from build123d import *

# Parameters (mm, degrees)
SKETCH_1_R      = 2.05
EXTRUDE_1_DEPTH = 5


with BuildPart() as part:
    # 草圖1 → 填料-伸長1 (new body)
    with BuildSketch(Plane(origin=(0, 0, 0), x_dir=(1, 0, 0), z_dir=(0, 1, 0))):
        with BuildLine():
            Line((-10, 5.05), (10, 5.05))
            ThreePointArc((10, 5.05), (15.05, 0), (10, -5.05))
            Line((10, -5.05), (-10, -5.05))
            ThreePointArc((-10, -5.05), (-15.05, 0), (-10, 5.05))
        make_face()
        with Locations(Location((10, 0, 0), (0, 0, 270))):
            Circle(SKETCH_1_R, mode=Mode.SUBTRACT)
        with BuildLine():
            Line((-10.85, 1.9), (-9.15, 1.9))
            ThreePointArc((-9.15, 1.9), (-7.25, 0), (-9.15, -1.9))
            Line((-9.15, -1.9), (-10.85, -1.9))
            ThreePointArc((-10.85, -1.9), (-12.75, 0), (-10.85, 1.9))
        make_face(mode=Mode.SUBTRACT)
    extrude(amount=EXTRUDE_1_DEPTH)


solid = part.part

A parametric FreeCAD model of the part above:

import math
import FreeCAD as App
import Part
import Sketcher

V = App.Vector

doc = App.newDocument("Part")
body = doc.addObject("PartDesign::Body", "Body")

# Sketch on XZ plane
sketch1 = body.newObject("Sketcher::SketchObject", "Sketch")
sketch1.AttachmentSupport = (doc.getObject("XZ_Plane"), [""])
sketch1.MapMode = "FlatFace"
sketch1.addGeometry([
    Part.LineSegment(V(10, -5, 0), V(-10, -5, 0)),  # 0
    Part.ArcOfCircle(Part.Circle(V(-10, 0, 0), V(0, 0, 1), 5), math.radians(90), math.radians(270)),  # 1
    Part.LineSegment(V(-10, 5, 0), V(10, 5, 0)),  # 2
    Part.ArcOfCircle(Part.Circle(V(10, 0, 0), V(0, 0, 1), 5), math.radians(-90), math.radians(90)),  # 3
    Part.Circle(V(10, 0, 0), V(0, 0, 1), 2),  # 4
    Part.LineSegment(V(-10.8, -1.9, 0), V(-9.2, -1.9, 0)),  # 5
    Part.ArcOfCircle(Part.Circle(V(-9.2, 0, 0), V(0, 0, 1), 1.9), math.radians(-90), math.radians(90)),  # 6
    Part.LineSegment(V(-9.2, 1.9, 0), V(-10.8, 1.9, 0)),  # 7
    Part.ArcOfCircle(Part.Circle(V(-10.8, 0, 0), V(0, 0, 1), 1.9), math.radians(90), math.radians(270)),  # 8
], False)
sketch1.addConstraint([
    Sketcher.Constraint("Tangent", 0, 2, 1, 2),
    Sketcher.Constraint("Tangent", 1, 1, 2, 1),
    Sketcher.Constraint("Tangent", 2, 2, 3, 2),
    Sketcher.Constraint("Tangent", 3, 1, 0, 1),
    Sketcher.Constraint("Tangent", 5, 2, 6, 1),
    Sketcher.Constraint("Tangent", 6, 2, 7, 1),
    Sketcher.Constraint("Tangent", 7, 2, 8, 1),
    Sketcher.Constraint("Tangent", 8, 2, 5, 1),
    Sketcher.Constraint("Horizontal", 0),
    Sketcher.Constraint("Horizontal", 2),
    Sketcher.Constraint("Horizontal", 5),
    Sketcher.Constraint("Horizontal", 7),
    Sketcher.Constraint("Coincident", 4, 3, 3, 3),
    Sketcher.Constraint("Symmetric", 1, 3, 3, 3, -1, 1),
    Sketcher.Constraint("PointOnObject", 6, 3, -1),
    Sketcher.Constraint("Diameter", 4, 4.1),
    Sketcher.Constraint("Radius", 6, 1.9),
    Sketcher.Constraint("DistanceX", 0, 2, 0, 1, 20.0),
    Sketcher.Constraint("Radius", 1, 5.05),
    Sketcher.Constraint("DistanceX", 5, 1, 5, 2, 1.7),
    Sketcher.Constraint("DistanceX", 6, 3, -1, 1, 9.15),
])
pad1 = body.newObject("PartDesign::Pad", "Pad")
pad1.Profile = sketch1
pad1.Length = 5
pad1.Reversed = True

doc.recompute()
